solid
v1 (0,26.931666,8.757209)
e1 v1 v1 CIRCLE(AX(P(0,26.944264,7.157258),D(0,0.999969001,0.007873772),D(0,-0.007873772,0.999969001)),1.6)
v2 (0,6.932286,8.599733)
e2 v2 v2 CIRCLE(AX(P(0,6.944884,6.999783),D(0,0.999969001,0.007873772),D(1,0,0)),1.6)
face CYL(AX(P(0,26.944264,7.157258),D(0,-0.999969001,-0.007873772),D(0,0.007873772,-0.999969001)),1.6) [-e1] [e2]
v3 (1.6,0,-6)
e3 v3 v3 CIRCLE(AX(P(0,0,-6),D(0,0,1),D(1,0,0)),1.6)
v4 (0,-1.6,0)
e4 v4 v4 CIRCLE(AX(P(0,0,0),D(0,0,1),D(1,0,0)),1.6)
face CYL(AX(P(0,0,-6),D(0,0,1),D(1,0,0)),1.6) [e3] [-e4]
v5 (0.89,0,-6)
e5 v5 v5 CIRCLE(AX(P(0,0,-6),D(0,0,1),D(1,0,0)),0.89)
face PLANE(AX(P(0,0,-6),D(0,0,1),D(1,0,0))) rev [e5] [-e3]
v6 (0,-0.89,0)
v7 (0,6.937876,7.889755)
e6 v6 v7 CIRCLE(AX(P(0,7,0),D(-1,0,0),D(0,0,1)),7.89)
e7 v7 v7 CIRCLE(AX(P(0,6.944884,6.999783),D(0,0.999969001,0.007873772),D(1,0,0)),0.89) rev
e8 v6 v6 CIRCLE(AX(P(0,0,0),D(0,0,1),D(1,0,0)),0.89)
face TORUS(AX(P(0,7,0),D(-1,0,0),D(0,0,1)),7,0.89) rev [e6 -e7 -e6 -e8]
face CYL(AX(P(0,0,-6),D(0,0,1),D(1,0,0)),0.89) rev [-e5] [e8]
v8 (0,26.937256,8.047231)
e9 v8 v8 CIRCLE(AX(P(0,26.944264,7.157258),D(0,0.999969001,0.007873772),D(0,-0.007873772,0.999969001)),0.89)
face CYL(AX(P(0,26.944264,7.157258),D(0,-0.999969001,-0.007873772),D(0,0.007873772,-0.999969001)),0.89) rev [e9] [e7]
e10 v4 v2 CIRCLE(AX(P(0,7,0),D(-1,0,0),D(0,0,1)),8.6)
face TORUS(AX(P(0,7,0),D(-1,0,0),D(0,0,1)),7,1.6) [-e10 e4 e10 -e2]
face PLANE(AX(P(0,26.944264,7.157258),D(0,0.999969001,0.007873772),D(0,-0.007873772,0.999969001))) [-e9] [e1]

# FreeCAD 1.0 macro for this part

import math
import FreeCAD as App
import Part
import Sketcher
from FreeCAD import Vector

doc = App.newDocument("Part")
body = doc.addObject("PartDesign::Body", "Body")

sketch1 = body.newObject("Sketcher::SketchObject", "Sketch")
sketch1.AttachmentSupport = (doc.getObject("XY_Plane"), [""])
sketch1.MapMode = "FlatFace"
sketch1.addGeometry([
    Part.Circle(Vector(0, 0, 0), Vector(0, 0, 1), 1.6),
    Part.Circle(Vector(0, 0, 0), Vector(0, 0, 1), 0.9),
], False)
sketch1.addConstraint([
    Sketcher.Constraint("Coincident", 0, 3, -1, 1),
    Sketcher.Constraint("Coincident", 1, 3, -1, 1),
    Sketcher.Constraint("Diameter", 0, 3.2),
    Sketcher.Constraint("Diameter", 1, 1.78),
])

sketch2 = body.newObject("Sketcher::SketchObject", "Sketch001")
sketch2.AttachmentSupport = (doc.getObject("YZ_Plane"), [""])
sketch2.MapMode = "FlatFace"
sketch2.addGeometry(Part.ArcOfCircle(Part.Circle(Vector(7, 0, 0), Vector(0, 0, 1), 7), math.radians(90), math.radians(180)), False)
sketch2.addConstraint([
    Sketcher.Constraint("Coincident", 0, 2, -1, 1),
    Sketcher.Constraint("PointOnObject", 0, 3, -1),
    Sketcher.Constraint("Radius", 0, 7.0),
    Sketcher.Constraint("DistanceX", -1, 1, 0, 1, 6.944884),
])
doc.recompute()

additivepipe = body.newObject("PartDesign::AdditivePipe", "AdditivePipe")
additivepipe.Profile = sketch1
additivepipe.Spine = (sketch2, ["Edge1"])

sketch3 = body.newObject("Sketcher::SketchObject", "Sketch002")
sketch3.AttachmentSupport = (doc.getObject("XY_Plane"), [""])
sketch3.MapMode = "FlatFace"
sketch3.addGeometry([
    Part.Circle(Vector(0, 0, 0), Vector(0, 0, 1), 1.6),
    Part.Circle(Vector(0, 0, 0), Vector(0, 0, 1), 0.9),
], False)
sketch3.addConstraint([
    Sketcher.Constraint("Coincident", 0, 3, -1, 1),
    Sketcher.Constraint("Coincident", 1, 3, -1, 1),
    Sketcher.Constraint("Diameter", 0, 3.2),
    Sketcher.Constraint("Diameter", 1, 1.78),
])
pad1 = body.newObject("PartDesign::Pad", "Pad")
pad1.Profile = sketch3
pad1.Length = 6
pad1.Reversed = True

sketch4 = body.newObject("Sketcher::SketchObject", "Sketch003")
sketch4.Placement = App.Placement(Vector(0, 6.999566, 0.055115), App.Rotation(Vector(1, 0, 0), Vector(0, 0.007873772, -0.999969001), Vector(0, 0.999969001, 0.007873772), "ZXY"))
sketch4.addGeometry([
    Part.Circle(Vector(0, -6.9, 0), Vector(0, 0, 1), 1.6),
    Part.Circle(Vector(0, -6.9, 0), Vector(0, 0, 1), 0.9),
], False)
sketch4.addConstraint([
    Sketcher.Constraint("Coincident", 1, 3, 0, 3),
    Sketcher.Constraint("PointOnObject", 0, 3, -2),
    Sketcher.Constraint("Diameter", 0, 3.2),
    Sketcher.Constraint("Diameter", 1, 1.78),
    Sketcher.Constraint("DistanceY", 0, 3, -1, 1, 6.944884),
])
pad2 = body.newObject("PartDesign::Pad", "Pad001")
pad2.Profile = sketch4
pad2.Length = 20

doc.recompute()
